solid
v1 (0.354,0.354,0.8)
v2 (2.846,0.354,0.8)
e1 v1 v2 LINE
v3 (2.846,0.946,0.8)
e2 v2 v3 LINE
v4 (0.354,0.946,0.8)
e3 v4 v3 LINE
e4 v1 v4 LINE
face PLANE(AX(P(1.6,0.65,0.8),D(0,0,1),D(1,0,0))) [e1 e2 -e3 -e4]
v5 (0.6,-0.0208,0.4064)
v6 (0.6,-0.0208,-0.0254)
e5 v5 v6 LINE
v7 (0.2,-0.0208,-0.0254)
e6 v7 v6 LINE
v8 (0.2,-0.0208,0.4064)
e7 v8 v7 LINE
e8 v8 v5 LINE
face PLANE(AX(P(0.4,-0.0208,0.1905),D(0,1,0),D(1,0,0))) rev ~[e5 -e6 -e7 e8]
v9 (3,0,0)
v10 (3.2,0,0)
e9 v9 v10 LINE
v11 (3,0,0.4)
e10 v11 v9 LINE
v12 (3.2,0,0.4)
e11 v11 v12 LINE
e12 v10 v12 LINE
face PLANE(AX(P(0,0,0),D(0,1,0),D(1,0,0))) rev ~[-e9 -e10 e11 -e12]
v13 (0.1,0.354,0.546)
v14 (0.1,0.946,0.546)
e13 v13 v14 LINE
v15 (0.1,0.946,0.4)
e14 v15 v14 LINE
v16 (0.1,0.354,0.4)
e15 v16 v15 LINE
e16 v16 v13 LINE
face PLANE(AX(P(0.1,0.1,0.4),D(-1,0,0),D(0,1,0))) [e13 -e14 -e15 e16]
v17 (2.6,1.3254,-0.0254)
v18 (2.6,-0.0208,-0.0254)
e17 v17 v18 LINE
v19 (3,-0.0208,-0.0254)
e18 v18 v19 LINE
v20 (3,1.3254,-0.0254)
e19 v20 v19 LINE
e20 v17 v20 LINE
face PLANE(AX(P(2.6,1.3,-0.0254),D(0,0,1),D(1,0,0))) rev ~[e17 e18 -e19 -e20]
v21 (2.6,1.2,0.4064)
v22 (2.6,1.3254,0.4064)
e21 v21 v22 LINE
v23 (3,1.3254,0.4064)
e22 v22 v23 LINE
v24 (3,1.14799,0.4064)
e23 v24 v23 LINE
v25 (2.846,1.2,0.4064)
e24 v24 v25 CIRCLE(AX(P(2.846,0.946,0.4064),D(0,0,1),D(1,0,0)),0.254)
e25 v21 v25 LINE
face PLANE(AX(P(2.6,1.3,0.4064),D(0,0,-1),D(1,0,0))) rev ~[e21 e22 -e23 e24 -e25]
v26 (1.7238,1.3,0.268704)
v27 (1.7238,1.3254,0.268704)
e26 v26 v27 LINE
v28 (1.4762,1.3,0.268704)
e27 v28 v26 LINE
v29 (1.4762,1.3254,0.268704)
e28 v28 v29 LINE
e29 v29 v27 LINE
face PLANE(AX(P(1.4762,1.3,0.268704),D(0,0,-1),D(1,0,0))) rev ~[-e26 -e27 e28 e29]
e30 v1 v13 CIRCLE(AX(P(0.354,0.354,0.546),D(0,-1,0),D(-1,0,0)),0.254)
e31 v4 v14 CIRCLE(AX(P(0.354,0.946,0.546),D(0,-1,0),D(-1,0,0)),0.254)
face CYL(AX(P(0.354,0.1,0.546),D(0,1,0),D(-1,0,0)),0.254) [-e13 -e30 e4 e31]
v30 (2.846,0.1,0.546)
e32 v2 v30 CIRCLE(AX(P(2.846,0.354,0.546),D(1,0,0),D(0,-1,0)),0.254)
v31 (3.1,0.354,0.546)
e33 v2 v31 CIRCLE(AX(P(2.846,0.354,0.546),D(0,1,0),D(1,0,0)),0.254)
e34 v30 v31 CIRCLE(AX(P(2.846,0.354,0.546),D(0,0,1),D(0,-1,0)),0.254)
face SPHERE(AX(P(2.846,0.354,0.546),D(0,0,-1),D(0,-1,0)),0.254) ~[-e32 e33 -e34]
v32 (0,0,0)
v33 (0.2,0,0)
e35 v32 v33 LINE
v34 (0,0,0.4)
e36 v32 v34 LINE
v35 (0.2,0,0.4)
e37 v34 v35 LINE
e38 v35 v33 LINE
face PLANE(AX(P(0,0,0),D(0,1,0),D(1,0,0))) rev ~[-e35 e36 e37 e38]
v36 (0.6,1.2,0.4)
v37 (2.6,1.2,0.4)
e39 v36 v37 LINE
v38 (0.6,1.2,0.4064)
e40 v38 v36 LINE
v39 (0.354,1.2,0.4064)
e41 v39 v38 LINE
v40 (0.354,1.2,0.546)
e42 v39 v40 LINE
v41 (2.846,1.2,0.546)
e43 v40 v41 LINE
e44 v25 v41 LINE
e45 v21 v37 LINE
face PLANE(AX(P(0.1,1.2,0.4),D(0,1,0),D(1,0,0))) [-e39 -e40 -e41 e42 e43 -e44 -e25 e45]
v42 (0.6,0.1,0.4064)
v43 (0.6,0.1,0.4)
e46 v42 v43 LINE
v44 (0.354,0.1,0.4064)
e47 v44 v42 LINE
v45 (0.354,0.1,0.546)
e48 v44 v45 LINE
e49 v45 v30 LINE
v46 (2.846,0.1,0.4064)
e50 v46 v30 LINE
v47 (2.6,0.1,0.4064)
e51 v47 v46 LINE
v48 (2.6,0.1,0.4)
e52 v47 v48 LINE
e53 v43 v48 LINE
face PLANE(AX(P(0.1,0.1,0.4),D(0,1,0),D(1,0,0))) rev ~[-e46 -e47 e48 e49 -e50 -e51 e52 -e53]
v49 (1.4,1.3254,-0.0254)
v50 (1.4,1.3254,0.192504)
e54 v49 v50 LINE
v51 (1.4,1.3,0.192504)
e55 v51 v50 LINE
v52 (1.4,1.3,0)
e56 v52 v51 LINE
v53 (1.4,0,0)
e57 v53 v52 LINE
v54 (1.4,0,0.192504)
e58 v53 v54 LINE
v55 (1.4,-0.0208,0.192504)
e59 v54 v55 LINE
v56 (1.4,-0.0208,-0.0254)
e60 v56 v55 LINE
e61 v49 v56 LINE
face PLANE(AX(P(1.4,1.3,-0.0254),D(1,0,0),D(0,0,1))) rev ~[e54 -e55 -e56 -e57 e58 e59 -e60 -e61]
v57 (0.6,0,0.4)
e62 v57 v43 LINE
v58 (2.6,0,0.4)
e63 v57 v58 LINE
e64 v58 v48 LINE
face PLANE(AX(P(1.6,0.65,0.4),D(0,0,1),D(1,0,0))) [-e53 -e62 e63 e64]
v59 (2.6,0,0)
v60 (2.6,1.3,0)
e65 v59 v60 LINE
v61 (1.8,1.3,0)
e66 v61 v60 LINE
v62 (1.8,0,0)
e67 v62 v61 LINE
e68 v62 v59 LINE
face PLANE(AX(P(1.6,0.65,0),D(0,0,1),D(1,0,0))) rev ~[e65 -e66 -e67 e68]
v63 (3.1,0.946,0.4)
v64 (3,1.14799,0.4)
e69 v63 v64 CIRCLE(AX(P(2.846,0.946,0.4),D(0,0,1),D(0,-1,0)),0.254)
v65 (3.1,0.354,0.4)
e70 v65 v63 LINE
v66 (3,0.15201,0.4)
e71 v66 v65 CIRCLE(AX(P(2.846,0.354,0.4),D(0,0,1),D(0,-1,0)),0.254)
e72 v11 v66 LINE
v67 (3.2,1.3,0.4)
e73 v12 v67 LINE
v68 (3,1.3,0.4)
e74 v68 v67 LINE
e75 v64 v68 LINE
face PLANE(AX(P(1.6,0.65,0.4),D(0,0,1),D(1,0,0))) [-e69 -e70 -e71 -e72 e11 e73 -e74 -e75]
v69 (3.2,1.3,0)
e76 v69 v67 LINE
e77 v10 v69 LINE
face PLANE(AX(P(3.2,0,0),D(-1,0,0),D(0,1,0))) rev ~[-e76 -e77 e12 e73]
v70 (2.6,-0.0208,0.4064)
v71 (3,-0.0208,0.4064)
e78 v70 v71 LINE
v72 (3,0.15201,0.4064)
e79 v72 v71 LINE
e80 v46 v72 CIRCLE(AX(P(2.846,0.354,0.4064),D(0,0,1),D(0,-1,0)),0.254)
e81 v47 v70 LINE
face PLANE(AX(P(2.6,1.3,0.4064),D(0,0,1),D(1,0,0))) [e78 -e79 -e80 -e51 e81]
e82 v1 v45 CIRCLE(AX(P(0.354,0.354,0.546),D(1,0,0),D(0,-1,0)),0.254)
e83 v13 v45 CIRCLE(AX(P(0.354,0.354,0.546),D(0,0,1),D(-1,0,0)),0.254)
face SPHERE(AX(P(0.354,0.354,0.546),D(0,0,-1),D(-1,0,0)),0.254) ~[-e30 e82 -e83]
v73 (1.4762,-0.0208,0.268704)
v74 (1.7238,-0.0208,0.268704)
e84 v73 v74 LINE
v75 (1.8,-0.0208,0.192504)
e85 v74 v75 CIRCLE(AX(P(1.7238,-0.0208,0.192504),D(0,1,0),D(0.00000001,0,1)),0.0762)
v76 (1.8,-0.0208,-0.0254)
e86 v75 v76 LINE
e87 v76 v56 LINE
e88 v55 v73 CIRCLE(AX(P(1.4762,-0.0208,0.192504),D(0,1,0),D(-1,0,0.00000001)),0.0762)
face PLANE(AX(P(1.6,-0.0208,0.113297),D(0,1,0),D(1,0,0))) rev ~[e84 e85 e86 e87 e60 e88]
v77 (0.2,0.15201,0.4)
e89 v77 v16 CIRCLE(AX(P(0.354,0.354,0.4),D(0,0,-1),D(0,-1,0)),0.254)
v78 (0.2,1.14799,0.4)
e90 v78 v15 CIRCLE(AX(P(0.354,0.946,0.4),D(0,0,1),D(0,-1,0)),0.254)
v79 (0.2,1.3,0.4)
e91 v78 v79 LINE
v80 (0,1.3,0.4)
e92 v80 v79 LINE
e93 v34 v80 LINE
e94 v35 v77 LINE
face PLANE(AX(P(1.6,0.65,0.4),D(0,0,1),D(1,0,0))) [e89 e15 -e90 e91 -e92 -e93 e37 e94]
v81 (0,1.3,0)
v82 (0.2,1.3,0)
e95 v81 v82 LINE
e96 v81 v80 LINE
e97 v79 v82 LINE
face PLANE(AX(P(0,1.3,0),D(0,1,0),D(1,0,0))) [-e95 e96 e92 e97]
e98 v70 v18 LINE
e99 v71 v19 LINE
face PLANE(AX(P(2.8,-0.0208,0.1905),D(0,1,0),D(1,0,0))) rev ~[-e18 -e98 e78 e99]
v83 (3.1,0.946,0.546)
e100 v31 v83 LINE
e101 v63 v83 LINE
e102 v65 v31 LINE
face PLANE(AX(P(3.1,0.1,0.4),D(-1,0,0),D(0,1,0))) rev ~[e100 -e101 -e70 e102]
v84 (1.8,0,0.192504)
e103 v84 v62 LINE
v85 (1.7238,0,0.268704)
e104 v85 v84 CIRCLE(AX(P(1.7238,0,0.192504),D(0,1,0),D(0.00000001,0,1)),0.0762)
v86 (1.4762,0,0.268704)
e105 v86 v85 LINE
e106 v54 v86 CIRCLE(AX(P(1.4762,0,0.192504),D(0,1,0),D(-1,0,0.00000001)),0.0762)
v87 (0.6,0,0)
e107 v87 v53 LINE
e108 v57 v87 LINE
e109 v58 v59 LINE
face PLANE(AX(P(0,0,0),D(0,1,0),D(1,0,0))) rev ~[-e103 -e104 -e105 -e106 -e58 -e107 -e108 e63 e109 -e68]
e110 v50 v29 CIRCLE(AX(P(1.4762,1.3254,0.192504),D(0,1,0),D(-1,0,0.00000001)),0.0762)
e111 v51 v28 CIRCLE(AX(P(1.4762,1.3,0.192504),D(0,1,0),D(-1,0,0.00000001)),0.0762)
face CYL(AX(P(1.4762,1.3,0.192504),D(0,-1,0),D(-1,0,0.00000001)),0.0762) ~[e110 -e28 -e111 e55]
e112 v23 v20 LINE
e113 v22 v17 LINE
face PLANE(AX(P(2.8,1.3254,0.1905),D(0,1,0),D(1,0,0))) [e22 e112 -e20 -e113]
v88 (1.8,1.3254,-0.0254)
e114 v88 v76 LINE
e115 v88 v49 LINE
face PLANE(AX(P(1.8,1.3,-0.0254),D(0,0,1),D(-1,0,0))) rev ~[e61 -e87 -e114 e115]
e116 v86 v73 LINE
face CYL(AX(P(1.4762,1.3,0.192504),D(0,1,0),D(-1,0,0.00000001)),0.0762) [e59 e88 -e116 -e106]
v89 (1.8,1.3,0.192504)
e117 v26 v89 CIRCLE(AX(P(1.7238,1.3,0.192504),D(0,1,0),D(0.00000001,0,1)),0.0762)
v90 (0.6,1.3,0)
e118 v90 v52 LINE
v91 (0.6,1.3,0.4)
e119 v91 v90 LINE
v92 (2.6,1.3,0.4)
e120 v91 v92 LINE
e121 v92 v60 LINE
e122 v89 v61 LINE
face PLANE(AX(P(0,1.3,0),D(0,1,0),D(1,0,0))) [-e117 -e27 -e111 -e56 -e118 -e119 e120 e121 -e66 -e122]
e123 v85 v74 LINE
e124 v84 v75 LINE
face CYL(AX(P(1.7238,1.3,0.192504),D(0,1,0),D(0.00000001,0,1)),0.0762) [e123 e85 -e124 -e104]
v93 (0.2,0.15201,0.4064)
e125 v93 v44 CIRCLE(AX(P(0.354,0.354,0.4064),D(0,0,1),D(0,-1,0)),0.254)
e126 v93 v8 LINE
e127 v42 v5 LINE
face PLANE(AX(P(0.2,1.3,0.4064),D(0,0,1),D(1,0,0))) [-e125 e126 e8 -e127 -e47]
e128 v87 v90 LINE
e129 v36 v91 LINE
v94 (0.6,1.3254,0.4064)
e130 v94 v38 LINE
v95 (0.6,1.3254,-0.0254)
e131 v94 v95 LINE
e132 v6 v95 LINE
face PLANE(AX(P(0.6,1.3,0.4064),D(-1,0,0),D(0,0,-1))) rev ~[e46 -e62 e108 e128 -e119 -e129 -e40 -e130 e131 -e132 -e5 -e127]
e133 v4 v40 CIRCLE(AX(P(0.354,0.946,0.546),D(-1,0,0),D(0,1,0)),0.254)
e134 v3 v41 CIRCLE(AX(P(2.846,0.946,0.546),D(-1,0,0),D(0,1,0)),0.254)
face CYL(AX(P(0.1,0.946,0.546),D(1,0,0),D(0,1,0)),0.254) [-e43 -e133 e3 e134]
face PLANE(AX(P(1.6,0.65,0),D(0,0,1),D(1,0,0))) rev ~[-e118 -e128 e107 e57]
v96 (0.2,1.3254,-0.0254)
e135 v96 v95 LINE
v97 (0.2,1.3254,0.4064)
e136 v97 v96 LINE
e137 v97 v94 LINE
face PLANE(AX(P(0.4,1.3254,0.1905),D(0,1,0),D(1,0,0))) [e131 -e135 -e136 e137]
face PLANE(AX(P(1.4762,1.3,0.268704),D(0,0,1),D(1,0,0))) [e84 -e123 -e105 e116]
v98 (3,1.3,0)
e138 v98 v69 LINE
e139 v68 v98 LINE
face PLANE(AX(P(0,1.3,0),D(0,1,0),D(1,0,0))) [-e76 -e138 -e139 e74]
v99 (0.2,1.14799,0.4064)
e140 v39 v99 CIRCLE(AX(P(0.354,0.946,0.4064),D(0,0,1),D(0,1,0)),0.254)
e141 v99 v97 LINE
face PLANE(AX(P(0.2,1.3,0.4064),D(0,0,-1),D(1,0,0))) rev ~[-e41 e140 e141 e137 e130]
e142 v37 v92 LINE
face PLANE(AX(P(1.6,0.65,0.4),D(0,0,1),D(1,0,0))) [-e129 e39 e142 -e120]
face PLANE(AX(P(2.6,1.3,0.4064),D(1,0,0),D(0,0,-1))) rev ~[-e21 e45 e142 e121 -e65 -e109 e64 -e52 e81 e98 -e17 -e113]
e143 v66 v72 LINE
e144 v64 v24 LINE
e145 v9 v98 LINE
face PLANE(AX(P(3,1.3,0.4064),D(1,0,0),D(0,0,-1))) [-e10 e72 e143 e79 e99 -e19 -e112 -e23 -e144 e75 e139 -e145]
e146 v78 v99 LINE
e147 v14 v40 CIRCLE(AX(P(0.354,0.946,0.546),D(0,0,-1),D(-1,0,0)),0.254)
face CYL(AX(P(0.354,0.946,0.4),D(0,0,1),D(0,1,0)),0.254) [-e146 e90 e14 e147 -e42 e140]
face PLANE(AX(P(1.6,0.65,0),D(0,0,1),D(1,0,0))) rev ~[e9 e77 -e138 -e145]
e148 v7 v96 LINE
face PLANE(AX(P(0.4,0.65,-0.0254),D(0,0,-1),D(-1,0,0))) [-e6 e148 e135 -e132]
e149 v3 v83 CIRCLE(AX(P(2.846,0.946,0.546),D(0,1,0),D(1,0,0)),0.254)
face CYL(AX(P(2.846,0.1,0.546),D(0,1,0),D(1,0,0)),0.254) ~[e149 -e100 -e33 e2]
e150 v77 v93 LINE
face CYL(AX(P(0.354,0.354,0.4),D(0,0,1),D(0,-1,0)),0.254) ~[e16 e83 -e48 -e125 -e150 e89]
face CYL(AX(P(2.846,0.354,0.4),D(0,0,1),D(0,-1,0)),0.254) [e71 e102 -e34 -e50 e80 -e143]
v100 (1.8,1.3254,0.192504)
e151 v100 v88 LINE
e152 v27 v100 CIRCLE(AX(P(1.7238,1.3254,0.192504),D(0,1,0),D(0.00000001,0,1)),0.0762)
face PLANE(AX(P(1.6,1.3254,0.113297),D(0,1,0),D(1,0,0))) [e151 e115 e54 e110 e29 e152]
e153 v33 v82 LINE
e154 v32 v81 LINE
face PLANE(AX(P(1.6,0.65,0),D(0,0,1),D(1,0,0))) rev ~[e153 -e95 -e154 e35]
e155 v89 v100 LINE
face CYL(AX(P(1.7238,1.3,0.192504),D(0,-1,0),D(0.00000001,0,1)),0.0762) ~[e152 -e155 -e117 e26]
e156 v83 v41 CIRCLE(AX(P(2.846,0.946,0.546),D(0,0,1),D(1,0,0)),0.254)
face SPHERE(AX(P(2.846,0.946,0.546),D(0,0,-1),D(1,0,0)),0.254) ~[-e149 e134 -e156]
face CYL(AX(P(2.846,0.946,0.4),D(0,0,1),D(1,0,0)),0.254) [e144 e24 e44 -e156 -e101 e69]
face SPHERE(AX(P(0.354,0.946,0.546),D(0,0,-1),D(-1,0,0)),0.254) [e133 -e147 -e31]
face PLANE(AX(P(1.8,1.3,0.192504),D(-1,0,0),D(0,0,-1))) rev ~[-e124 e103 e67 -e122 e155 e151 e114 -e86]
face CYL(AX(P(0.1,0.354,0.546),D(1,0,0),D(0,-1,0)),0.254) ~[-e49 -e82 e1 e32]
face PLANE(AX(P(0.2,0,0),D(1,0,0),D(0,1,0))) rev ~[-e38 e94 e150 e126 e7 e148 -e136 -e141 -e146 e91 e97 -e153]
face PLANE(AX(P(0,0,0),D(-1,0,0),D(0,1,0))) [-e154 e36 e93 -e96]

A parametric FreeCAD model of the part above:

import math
import FreeCAD as App
import Part
import Sketcher
from FreeCAD import Vector
Q = App.Units.Quantity


def edges_at(feature, points):
    """Names of the edges that pass closest to the given points."""
    edges = feature.Shape.Edges
    near = lambda p: min(range(len(edges)), key=lambda i: edges[i].distToShape(Part.Vertex(*p))[0])
    return sorted({f"Edge{near(p) + 1}" for p in points})

doc = App.newDocument("Part")
body = doc.addObject("PartDesign::Body", "Body")

# Sketch on XY plane
sketch1 = doc.addObject("Sketcher::SketchObject", "Sketch")
body.addObject(sketch1)
sketch1.AttachmentSupport = (doc.XY_Plane, [""])
sketch1.MapMode = "FlatFace"
sketch1.addGeometry([
    Part.LineSegment(Vector(0, 1.3, 0), Vector(0, 0, 0)),
    Part.LineSegment(Vector(0, 0, 0), Vector(3.2, 0, 0)),
    Part.LineSegment(Vector(3.2, 0, 0), Vector(3.2, 1.3, 0)),
    Part.LineSegment(Vector(3.2, 1.3, 0), Vector(0, 1.3, 0)),
], False)
sketch1.addConstraint([
    Sketcher.Constraint("Coincident", 0, 2, 1, 1),
    Sketcher.Constraint("Coincident", 1, 2, 2, 1),
    Sketcher.Constraint("Coincident", 2, 2, 3, 1),
    Sketcher.Constraint("Coincident", 3, 2, 0, 1),
    Sketcher.Constraint("Vertical", 0),
    Sketcher.Constraint("Horizontal", 1),
    Sketcher.Constraint("Vertical", 2),
    Sketcher.Constraint("Horizontal", 3),
    Sketcher.Constraint("Coincident", 0, 2, -1, 1),
    Sketcher.Constraint("DistanceX", 1, 1, 1, 2, Q("3.2 mm")),
    Sketcher.Constraint("DistanceY", 0, 2, 0, 1, Q("1.3 mm")),
])
pad1 = doc.addObject("PartDesign::Pad", "Pad")
body.addObject(pad1)
pad1.Profile = sketch1
pad1.Length = 0.4

# Sketch on XY plane
sketch2 = doc.addObject("Sketcher::SketchObject", "Sketch001")
body.addObject(sketch2)
sketch2.AttachmentSupport = (doc.XY_Plane, [""])
sketch2.MapMode = "FlatFace"
sketch2.AttachmentOffset = App.Placement(Vector(0, 0, 0.4), App.Rotation())
sketch2.addGeometry([
    Part.LineSegment(Vector(0.1, 1.2, 0), Vector(0.1, 0.1, 0)),
    Part.LineSegment(Vector(0.1, 0.1, 0), Vector(3.1, 0.1, 0)),
    Part.LineSegment(Vector(3.1, 0.1, 0), Vector(3.1, 1.2, 0)),
    Part.LineSegment(Vector(3.1, 1.2, 0), Vector(0.1, 1.2, 0)),
], False)
sketch2.addConstraint([
    Sketcher.Constraint("Coincident", 0, 2, 1, 1),
    Sketcher.Constraint("Coincident", 1, 2, 2, 1),
    Sketcher.Constraint("Coincident", 2, 2, 3, 1),
    Sketcher.Constraint("Coincident", 3, 2, 0, 1),
    Sketcher.Constraint("Vertical", 0),
    Sketcher.Constraint("Horizontal", 1),
    Sketcher.Constraint("Vertical", 2),
    Sketcher.Constraint("Horizontal", 3),
    Sketcher.Constraint("DistanceX", 1, 1, 1, 2, Q("3 mm")),
    Sketcher.Constraint("DistanceY", 0, 2, 0, 1, Q("1.1 mm")),
    Sketcher.Constraint("DistanceX", -1, 1, 0, 2, Q("0.1 mm")),
    Sketcher.Constraint("DistanceY", -1, 1, 0, 2, Q("0.1 mm")),
])
pad2 = doc.addObject("PartDesign::Pad", "Pad001")
body.addObject(pad2)
pad2.Profile = sketch2
pad2.Length = 0.4
doc.recompute()

fillet = doc.addObject("PartDesign::Fillet", "Fillet")
body.addObject(fillet)
fillet.Base = (pad2, edges_at(pad2, [
    (0.1, 1.2, 0.6),
    (0.1, 0.1, 0.6),
    (3.1, 0.1, 0.6),
    (3.1, 1.2, 0.6),
    (0.1, 0.65, 0.8),
    (1.6, 0.1, 0.8),
    (3.1, 0.65, 0.8),
    (1.6, 1.2, 0.8),
]))
fillet.Radius = 0.254

# Sketch on XY plane
sketch3 = doc.addObject("Sketcher::SketchObject", "Sketch002")
body.addObject(sketch3)
sketch3.AttachmentSupport = (doc.XY_Plane, [""])
sketch3.MapMode = "FlatFace"
sketch3.addGeometry([
    Part.LineSegment(Vector(0.6, 1.3, 0), Vector(0.6, 0, 0)),  # 0
    Part.LineSegment(Vector(0.6, 0, 0), Vector(0.2, 0, 0)),  # 1
    Part.LineSegment(Vector(0.2, 0, 0), Vector(0.2, 1.3, 0)),  # 2
    Part.LineSegment(Vector(0.2, 1.3, 0), Vector(0.6, 1.3, 0)),  # 3
    Part.LineSegment(Vector(3, 1.3, 0), Vector(3, 0, 0)),  # 4
    Part.LineSegment(Vector(3, 0, 0), Vector(2.6, 0, 0)),  # 5
    Part.LineSegment(Vector(2.6, 0, 0), Vector(2.6, 1.3, 0)),  # 6
    Part.LineSegment(Vector(2.6, 1.3, 0), Vector(3, 1.3, 0)),  # 7
    Part.LineSegment(Vector(1.8, 1.3, 0), Vector(1.8, 0, 0)),  # 8
    Part.LineSegment(Vector(1.8, 0, 0), Vector(1.4, 0, 0)),  # 9
    Part.LineSegment(Vector(1.4, 0, 0), Vector(1.4, 1.3, 0)),  # 10
    Part.LineSegment(Vector(1.4, 1.3, 0), Vector(1.8, 1.3, 0)),  # 11
], False)
sketch3.addConstraint([
    Sketcher.Constraint("Coincident", 0, 2, 1, 1),
    Sketcher.Constraint("Coincident", 1, 2, 2, 1),
    Sketcher.Constraint("Coincident", 2, 2, 3, 1),
    Sketcher.Constraint("Coincident", 3, 2, 0, 1),
    Sketcher.Constraint("Coincident", 4, 2, 5, 1),
    Sketcher.Constraint("Coincident", 5, 2, 6, 1),
    Sketcher.Constraint("Coincident", 6, 2, 7, 1),
    Sketcher.Constraint("Coincident", 7, 2, 4, 1),
    Sketcher.Constraint("Coincident", 8, 2, 9, 1),
    Sketcher.Constraint("Coincident", 9, 2, 10, 1),
    Sketcher.Constraint("Coincident", 10, 2, 11, 1),
    Sketcher.Constraint("Coincident", 11, 2, 8, 1),
    Sketcher.Constraint("Vertical", 0),
    Sketcher.Constraint("Horizontal", 1),
    Sketcher.Constraint("Vertical", 2),
    Sketcher.Constraint("Horizontal", 3),
    Sketcher.Constraint("Vertical", 4),
    Sketcher.Constraint("Horizontal", 5),
    Sketcher.Constraint("Vertical", 6),
    Sketcher.Constraint("Horizontal", 7),
    Sketcher.Constraint("Vertical", 8),
    Sketcher.Constraint("Horizontal", 9),
    Sketcher.Constraint("Vertical", 10),
    Sketcher.Constraint("Horizontal", 11),
    Sketcher.Constraint("PointOnObject", 0, 2, -1),
    Sketcher.Constraint("PointOnObject", 4, 2, -1),
    Sketcher.Constraint("PointOnObject", 8, 2, -1),
    Sketcher.Constraint("Horizontal", 3, 2, 6, 2),
    Sketcher.Constraint("Horizontal", 7, 2, 10, 2),
    Sketcher.Constraint("Equal", 3, 5),
    Sketcher.Constraint("Equal", 7, 9),
    Sketcher.Constraint("DistanceX", 1, 2, 1, 1, Q("0.4 mm")),
    Sketcher.Constraint("DistanceY", 0, 2, 0, 1, Q("1.3 mm")),
    Sketcher.Constraint("DistanceX", -1, 1, 4, 2, Q("3 mm")),
    Sketcher.Constraint("DistanceX", 0, 2, 5, 2, Q("2 mm")),
    Sketcher.Constraint("DistanceX", -1, 1, 8, 2, Q("1.8 mm")),
])
pad3 = doc.addObject("PartDesign::Pad", "Pad002")
body.addObject(pad3)
pad3.Profile = sketch3
pad3.Length = 0.0254
pad3.Reversed = True

# Sketch on XZ plane
sketch4 = doc.addObject("Sketcher::SketchObject", "Sketch003")
body.addObject(sketch4)
sketch4.AttachmentSupport = (doc.XZ_Plane, [""])
sketch4.MapMode = "FlatFace"
sketch4.AttachmentOffset = App.Placement(Vector(0, 0, -1.3), App.Rotation())
sketch4.addGeometry([
    Part.LineSegment(Vector(1.4, -0.0254, 0), Vector(1.4, 0.192504, 0)),  # 0
    Part.ArcOfCircle(Part.Circle(Vector(1.4762, 0.192504, 0), Vector(0, 0, 1), 0.0762), math.radians(90.000001), math.radians(179.999999)),  # 1
    Part.LineSegment(Vector(1.4762, 0.268704, 0), Vector(1.7238, 0.268704, 0)),  # 2
    Part.ArcOfCircle(Part.Circle(Vector(1.7238, 0.192504, 0), Vector(0, 0, 1), 0.0762), math.radians(0.000001), math.radians(89.999999)),  # 3
    Part.LineSegment(Vector(1.8, 0.192504, 0), Vector(1.8, -0.0254, 0)),  # 4
    Part.LineSegment(Vector(1.8, -0.0254, 0), Vector(1.4, -0.0254, 0)),  # 5
    Part.LineSegment(Vector(0.2, -0.0254, 0), Vector(0.2, 0.4064, 0)),  # 6
    Part.LineSegment(Vector(0.2, 0.4064, 0), Vector(0.6, 0.4064, 0)),  # 7
    Part.LineSegment(Vector(0.6, 0.4064, 0), Vector(0.6, -0.0254, 0)),  # 8
    Part.LineSegment(Vector(0.6, -0.0254, 0), Vector(0.2, -0.0254, 0)),  # 9
    Part.LineSegment(Vector(2.6, -0.0254, 0), Vector(2.6, 0.4064, 0)),  # 10
    Part.LineSegment(Vector(2.6, 0.4064, 0), Vector(3, 0.4064, 0)),  # 11
    Part.LineSegment(Vector(3, 0.4064, 0), Vector(3, -0.0254, 0)),  # 12
    Part.LineSegment(Vector(3, -0.0254, 0), Vector(2.6, -0.0254, 0)),  # 13
], False)
sketch4.addConstraint([
    Sketcher.Constraint("Tangent", 0, 2, 1, 2),
    Sketcher.Constraint("Tangent", 1, 1, 2, 1),
    Sketcher.Constraint("Tangent", 2, 2, 3, 2),
    Sketcher.Constraint("Tangent", 3, 1, 4, 1),
    Sketcher.Constraint("Coincident", 4, 2, 5, 1),
    Sketcher.Constraint("Coincident", 5, 2, 0, 1),
    Sketcher.Constraint("Coincident", 6, 2, 7, 1),
    Sketcher.Constraint("Coincident", 7, 2, 8, 1),
    Sketcher.Constraint("Coincident", 8, 2, 9, 1),
    Sketcher.Constraint("Coincident", 9, 2, 6, 1),
    Sketcher.Constraint("Coincident", 10, 2, 11, 1),
    Sketcher.Constraint("Coincident", 11, 2, 12, 1),
    Sketcher.Constraint("Coincident", 12, 2, 13, 1),
    Sketcher.Constraint("Coincident", 13, 2, 10, 1),
    Sketcher.Constraint("Vertical", 0),
    Sketcher.Constraint("Horizontal", 2),
    Sketcher.Constraint("Vertical", 4),
    Sketcher.Constraint("Horizontal", 5),
    Sketcher.Constraint("Vertical", 6),
    Sketcher.Constraint("Horizontal", 7),
    Sketcher.Constraint("Vertical", 8),
    Sketcher.Constraint("Horizontal", 9),
    Sketcher.Constraint("Vertical", 10),
    Sketcher.Constraint("Horizontal", 11),
    Sketcher.Constraint("Vertical", 12),
    Sketcher.Constraint("Horizontal", 13),
    Sketcher.Constraint("Equal", 1, 3),
    Sketcher.Constraint("Horizontal", 5, 2, 8, 2),
    Sketcher.Constraint("Horizontal", 7, 2, 10, 2),
    Sketcher.Constraint("Horizontal", 9, 2, 12, 2),
    Sketcher.Constraint("Equal", 5, 7),
    Sketcher.Constraint("Equal", 9, 11),
    Sketcher.Constraint("DistanceX", 5, 2, 5, 1, Q("0.4 mm")),
    Sketcher.Constraint("DistanceX", -1, 1, 11, 2, Q("3 mm")),
    Sketcher.Constraint("DistanceX", -1, 1, 0, 2, Q("1.4 mm")),
    Sketcher.Constraint("DistanceX", -1, 1, 6, 2, Q("0.2 mm")),
    Sketcher.Constraint("Radius", 1, Q("0.0762 mm")),
    Sketcher.Constraint("DistanceY", 6, 1, 6, 2, Q("0.4318 mm")),
    Sketcher.Constraint("DistanceY", 4, 2, -1, 1, Q("0.0254 mm")),
    Sketcher.Constraint("DistanceY", 0, 1, 0, 2, Q("0.217904 mm")),
])
pad4 = doc.addObject("PartDesign::Pad", "Pad003")
body.addObject(pad4)
pad4.Profile = sketch4
pad4.Type = "TwoLengths"
pad4.Length = 0.0254
pad4.Length2 = 1.3208
pad4.Reversed = True

doc.recompute()
